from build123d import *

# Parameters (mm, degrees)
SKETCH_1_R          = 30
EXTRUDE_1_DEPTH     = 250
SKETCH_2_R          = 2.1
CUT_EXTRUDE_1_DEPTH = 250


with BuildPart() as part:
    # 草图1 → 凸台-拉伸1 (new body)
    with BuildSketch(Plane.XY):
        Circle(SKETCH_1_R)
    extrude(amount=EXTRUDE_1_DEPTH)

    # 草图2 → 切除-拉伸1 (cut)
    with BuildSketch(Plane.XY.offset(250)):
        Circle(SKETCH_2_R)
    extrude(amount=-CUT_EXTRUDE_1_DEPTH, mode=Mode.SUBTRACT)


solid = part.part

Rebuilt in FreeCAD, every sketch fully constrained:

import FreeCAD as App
import Part
import Sketcher

V = App.Vector

doc = App.newDocument("Part")
params = doc.addObject("Spreadsheet::Sheet", "Params")
for row, (alias, value) in enumerate([
    ("sketch1_diameter", "60 mm"),
    ("pad1_length", "250 mm"),
    ("sketch2_diameter", "4.2 mm"),
    ("pocket1_length", "250 mm"),
], start=1):
    params.set(f"A{row}", alias)
    params.set(f"B{row}", "=" + value)
    params.setAlias(f"B{row}", alias)

body = doc.addObject("PartDesign::Body", "Body")

# Sketch on XY plane
sketch1 = body.newObject("Sketcher::SketchObject", "Sketch")
sketch1.AttachmentSupport = (doc.getObject("XY_Plane"), [""])
sketch1.MapMode = "FlatFace"
sketch1.addGeometry(Part.Circle(V(0, 0, 0), V(0, 0, 1), 30), False)
sketch1.addConstraint([
    Sketcher.Constraint("Coincident", 0, 3, -1, 1),
    Sketcher.Constraint("Diameter", 0, 60.0),
])
sketch1.setExpression("Constraints[1]", "Params.sketch1_diameter")
pad1 = body.newObject("PartDesign::Pad", "Pad")
pad1.Profile = sketch1
pad1.setExpression("Length", "Params.pad1_length")

# Sketch on XY plane
sketch2 = body.newObject("Sketcher::SketchObject", "Sketch001")
sketch2.AttachmentSupport = (doc.getObject("XY_Plane"), [""])
sketch2.MapMode = "FlatFace"
sketch2.AttachmentOffset = App.Placement(V(0, 0, 250), App.Rotation())
sketch2.addGeometry(Part.Circle(V(0, 0, 0), V(0, 0, 1), 2.1), False)
sketch2.addConstraint([
    Sketcher.Constraint("Coincident", 0, 3, -1, 1),
    Sketcher.Constraint("Diameter", 0, 4.2),
])
sketch2.setExpression("Constraints[1]", "Params.sketch2_diameter")
pocket1 = body.newObject("PartDesign::Pocket", "Pocket")
pocket1.Profile = sketch2
pocket1.setExpression("Length", "Params.pocket1_length")

doc.recompute()
